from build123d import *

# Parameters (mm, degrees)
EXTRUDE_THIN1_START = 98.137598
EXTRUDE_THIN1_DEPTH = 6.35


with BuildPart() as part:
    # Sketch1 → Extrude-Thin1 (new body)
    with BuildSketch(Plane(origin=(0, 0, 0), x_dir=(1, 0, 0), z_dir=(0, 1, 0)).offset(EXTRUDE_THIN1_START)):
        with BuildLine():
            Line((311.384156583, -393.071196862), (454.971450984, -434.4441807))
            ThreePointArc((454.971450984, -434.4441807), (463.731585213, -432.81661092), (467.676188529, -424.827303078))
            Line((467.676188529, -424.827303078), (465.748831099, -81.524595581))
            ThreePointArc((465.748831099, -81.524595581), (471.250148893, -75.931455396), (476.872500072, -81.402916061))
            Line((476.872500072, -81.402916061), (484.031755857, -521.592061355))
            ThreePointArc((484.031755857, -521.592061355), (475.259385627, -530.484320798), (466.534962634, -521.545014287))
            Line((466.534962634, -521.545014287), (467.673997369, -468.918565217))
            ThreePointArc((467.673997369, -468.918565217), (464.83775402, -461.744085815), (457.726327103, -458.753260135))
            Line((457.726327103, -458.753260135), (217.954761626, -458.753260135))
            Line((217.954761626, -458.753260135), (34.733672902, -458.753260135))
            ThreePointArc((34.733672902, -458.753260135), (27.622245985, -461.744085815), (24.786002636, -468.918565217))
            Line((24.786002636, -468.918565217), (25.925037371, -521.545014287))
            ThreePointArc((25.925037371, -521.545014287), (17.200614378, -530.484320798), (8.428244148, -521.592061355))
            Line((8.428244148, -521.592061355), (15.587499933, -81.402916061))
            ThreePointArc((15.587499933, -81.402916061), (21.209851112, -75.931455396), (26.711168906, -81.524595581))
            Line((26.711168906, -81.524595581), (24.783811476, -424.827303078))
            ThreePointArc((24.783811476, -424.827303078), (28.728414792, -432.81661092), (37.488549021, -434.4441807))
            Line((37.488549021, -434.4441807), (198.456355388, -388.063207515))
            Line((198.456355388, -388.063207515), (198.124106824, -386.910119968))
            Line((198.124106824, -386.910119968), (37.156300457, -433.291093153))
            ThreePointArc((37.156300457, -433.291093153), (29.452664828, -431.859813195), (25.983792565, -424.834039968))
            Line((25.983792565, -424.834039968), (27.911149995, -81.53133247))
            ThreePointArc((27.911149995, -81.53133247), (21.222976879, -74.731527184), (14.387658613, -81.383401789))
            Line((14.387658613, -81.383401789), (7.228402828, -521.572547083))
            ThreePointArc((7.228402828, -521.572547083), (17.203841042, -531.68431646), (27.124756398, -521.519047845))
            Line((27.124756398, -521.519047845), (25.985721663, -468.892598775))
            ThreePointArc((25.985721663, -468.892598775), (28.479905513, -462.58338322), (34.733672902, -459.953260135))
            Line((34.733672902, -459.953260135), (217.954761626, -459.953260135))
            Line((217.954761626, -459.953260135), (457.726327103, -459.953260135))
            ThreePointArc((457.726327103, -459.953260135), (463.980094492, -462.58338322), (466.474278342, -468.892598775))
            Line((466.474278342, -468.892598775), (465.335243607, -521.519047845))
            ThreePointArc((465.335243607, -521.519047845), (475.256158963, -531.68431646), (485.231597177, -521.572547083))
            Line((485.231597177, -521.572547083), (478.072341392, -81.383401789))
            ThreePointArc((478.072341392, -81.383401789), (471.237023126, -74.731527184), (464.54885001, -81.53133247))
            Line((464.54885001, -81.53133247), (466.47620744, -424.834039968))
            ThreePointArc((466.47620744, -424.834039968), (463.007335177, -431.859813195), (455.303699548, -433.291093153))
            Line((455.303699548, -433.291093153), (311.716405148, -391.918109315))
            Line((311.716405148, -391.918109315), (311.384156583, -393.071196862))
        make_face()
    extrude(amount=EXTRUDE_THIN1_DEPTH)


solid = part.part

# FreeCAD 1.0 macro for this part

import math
import FreeCAD as App
import Part
import Sketcher

V = App.Vector
Q = App.Units.Quantity

doc = App.newDocument("Part")
body = doc.addObject("PartDesign::Body", "Body")

sketch1 = body.newObject("Sketcher::SketchObject", "Sketch")
sketch1.AttachmentSupport = (doc.getObject("XZ_Plane"), [""])
sketch1.MapMode = "FlatFace"
sketch1.AttachmentOffset = App.Placement(V(0, 0, -98.137598), App.Rotation())
sketch1.addGeometry(Part.LineSegment(V(311.4, 393.1, 0), V(455, 434.4, 0)), False)
sketch1.addGeometry(Part.ArcOfCircle(Part.Circle(V(457.7, 424.9, 0), V(0, 0, 1), 9.9), math.radians(0), math.radians(106)), False)
sketch1.addGeometry(Part.LineSegment(V(467.7, 424.8, 0), V(465.7, 81.5, 0)), False)
sketch1.addGeometry(Part.ArcOfCircle(Part.Circle(V(471.3, 81.5, 0), V(0, 0, 1), 5.6), math.radians(180), math.radians(359)), False)
sketch1.addGeometry(Part.LineSegment(V(476.9, 81.4, 0), V(484, 521.6, 0)), False)
sketch1.addGeometry(Part.ArcOfCircle(Part.Circle(V(475.3, 521.7, 0), V(0, 0, 1), 8.7), math.radians(-1), math.radians(181)), False)
sketch1.addGeometry(Part.LineSegment(V(466.5, 521.5, 0), V(467.7, 468.9, 0)), False)
sketch1.addGeometry(Part.ArcOfCircle(Part.Circle(V(457.7, 468.7, 0), V(0, 0, 1), 9.9), math.radians(-90), math.radians(1)), False)
sketch1.addGeometry(Part.LineSegment(V(457.7, 458.8, 0), V(34.7, 458.8, 0)), False)
sketch1.addGeometry(Part.ArcOfCircle(Part.Circle(V(34.7, 468.7, 0), V(0, 0, 1), 9.9), math.radians(179), math.radians(270)), False)
sketch1.addGeometry(Part.LineSegment(V(24.8, 468.9, 0), V(25.9, 521.5, 0)), False)
sketch1.addGeometry(Part.ArcOfCircle(Part.Circle(V(17.2, 521.7, 0), V(0, 0, 1), 8.7), math.radians(-1), math.radians(181)), False)
sketch1.addGeometry(Part.LineSegment(V(8.4, 521.6, 0), V(15.6, 81.4, 0)), False)
sketch1.addGeometry(Part.ArcOfCircle(Part.Circle(V(21.1, 81.5, 0), V(0, 0, 1), 5.6), math.radians(-179), math.radians(0)), False)
sketch1.addGeometry(Part.LineSegment(V(26.7, 81.5, 0), V(24.8, 424.8, 0)), False)
sketch1.addGeometry(Part.ArcOfCircle(Part.Circle(V(34.7, 424.9, 0), V(0, 0, 1), 9.9), math.radians(74), math.radians(180)), False)
sketch1.addGeometry(Part.LineSegment(V(37.5, 434.4, 0), V(198.5, 388.1, 0)), False)
sketch1.addGeometry(Part.LineSegment(V(198.5, 388.1, 0), V(198.1, 386.9, 0)), False)
sketch1.addGeometry(Part.LineSegment(V(198.1, 386.9, 0), V(37.2, 433.3, 0)), False)
sketch1.addGeometry(Part.ArcOfCircle(Part.Circle(V(34.7, 424.9, 0), V(0, 0, 1), 8.8), math.radians(74), math.radians(180)), False)
sketch1.addGeometry(Part.LineSegment(V(26, 424.8, 0), V(27.9, 81.5, 0)), False)
sketch1.addGeometry(Part.ArcOfCircle(Part.Circle(V(21.1, 81.5, 0), V(0, 0, 1), 6.8), math.radians(-179), math.radians(0)), False)
sketch1.addGeometry(Part.LineSegment(V(14.4, 81.4, 0), V(7.2, 521.6, 0)), False)
sketch1.addGeometry(Part.ArcOfCircle(Part.Circle(V(17.2, 521.7, 0), V(0, 0, 1), 9.9), math.radians(-1), math.radians(181)), False)
sketch1.addGeometry(Part.LineSegment(V(27.1, 521.5, 0), V(26, 468.9, 0)), False)
sketch1.addGeometry(Part.ArcOfCircle(Part.Circle(V(34.7, 468.7, 0), V(0, 0, 1), 8.7), math.radians(179), math.radians(270)), False)
sketch1.addGeometry(Part.LineSegment(V(34.7, 460, 0), V(457.7, 460, 0)), False)
sketch1.addGeometry(Part.ArcOfCircle(Part.Circle(V(457.7, 468.7, 0), V(0, 0, 1), 8.7), math.radians(-90), math.radians(1)), False)
sketch1.addGeometry(Part.LineSegment(V(466.5, 468.9, 0), V(465.3, 521.5, 0)), False)
sketch1.addGeometry(Part.ArcOfCircle(Part.Circle(V(475.3, 521.7, 0), V(0, 0, 1), 9.9), math.radians(-1), math.radians(181)), False)
sketch1.addGeometry(Part.LineSegment(V(485.2, 521.6, 0), V(478.1, 81.4, 0)), False)
sketch1.addGeometry(Part.ArcOfCircle(Part.Circle(V(471.3, 81.5, 0), V(0, 0, 1), 6.8), math.radians(180), math.radians(359)), False)
sketch1.addGeometry(Part.LineSegment(V(464.5, 81.5, 0), V(466.5, 424.8, 0)), False)
sketch1.addGeometry(Part.ArcOfCircle(Part.Circle(V(457.7, 424.9, 0), V(0, 0, 1), 8.8), math.radians(0), math.radians(106)), False)
sketch1.addGeometry(Part.LineSegment(V(455.3, 433.3, 0), V(311.7, 391.9, 0)), False)
sketch1.addGeometry(Part.LineSegment(V(311.7, 391.9, 0), V(311.4, 393.1, 0)), False)
sketch1.addConstraint(Sketcher.Constraint("Tangent", 0, 2, 1, 2))
sketch1.addConstraint(Sketcher.Constraint("Tangent", 1, 1, 2, 1))
sketch1.addConstraint(Sketcher.Constraint("Tangent", 2, 2, 3, 1))
sketch1.addConstraint(Sketcher.Constraint("Tangent", 3, 2, 4, 1))
sketch1.addConstraint(Sketcher.Constraint("Tangent", 4, 2, 5, 1))
sketch1.addConstraint(Sketcher.Constraint("Tangent", 5, 2, 6, 1))
sketch1.addConstraint(Sketcher.Constraint("Tangent", 6, 2, 7, 2))
sketch1.addConstraint(Sketcher.Constraint("Tangent", 7, 1, 8, 1))
sketch1.addConstraint(Sketcher.Constraint("Tangent", 8, 2, 9, 2))
sketch1.addConstraint(Sketcher.Constraint("Tangent", 9, 1, 10, 1))
sketch1.addConstraint(Sketcher.Constraint("Tangent", 10, 2, 11, 1))
sketch1.addConstraint(Sketcher.Constraint("Tangent", 11, 2, 12, 1))
sketch1.addConstraint(Sketcher.Constraint("Tangent", 12, 2, 13, 1))
sketch1.addConstraint(Sketcher.Constraint("Tangent", 13, 2, 14, 1))
sketch1.addConstraint(Sketcher.Constraint("Tangent", 14, 2, 15, 2))
sketch1.addConstraint(Sketcher.Constraint("Tangent", 15, 1, 16, 1))
sketch1.addConstraint(Sketcher.Constraint("Coincident", 16, 2, 17, 1))
sketch1.addConstraint(Sketcher.Constraint("Coincident", 17, 2, 18, 1))
sketch1.addConstraint(Sketcher.Constraint("Tangent", 18, 2, 19, 1))
sketch1.addConstraint(Sketcher.Constraint("Tangent", 19, 2, 20, 1))
sketch1.addConstraint(Sketcher.Constraint("Tangent", 20, 2, 21, 2))
sketch1.addConstraint(Sketcher.Constraint("Tangent", 21, 1, 22, 1))
sketch1.addConstraint(Sketcher.Constraint("Tangent", 22, 2, 23, 2))
sketch1.addConstraint(Sketcher.Constraint("Tangent", 23, 1, 24, 1))
sketch1.addConstraint(Sketcher.Constraint("Tangent", 24, 2, 25, 1))
sketch1.addConstraint(Sketcher.Constraint("Tangent", 25, 2, 26, 1))
sketch1.addConstraint(Sketcher.Constraint("Tangent", 26, 2, 27, 1))
sketch1.addConstraint(Sketcher.Constraint("Tangent", 27, 2, 28, 1))
sketch1.addConstraint(Sketcher.Constraint("Tangent", 28, 2, 29, 2))
sketch1.addConstraint(Sketcher.Constraint("Tangent", 29, 1, 30, 1))
sketch1.addConstraint(Sketcher.Constraint("Tangent", 30, 2, 31, 2))
sketch1.addConstraint(Sketcher.Constraint("Tangent", 31, 1, 32, 1))
sketch1.addConstraint(Sketcher.Constraint("Tangent", 32, 2, 33, 1))
sketch1.addConstraint(Sketcher.Constraint("Tangent", 33, 2, 34, 1))
sketch1.addConstraint(Sketcher.Constraint("Coincident", 34, 2, 35, 1))
sketch1.addConstraint(Sketcher.Constraint("Coincident", 35, 2, 0, 1))
sketch1.addConstraint(Sketcher.Constraint("Horizontal", 8))
sketch1.addConstraint(Sketcher.Constraint("Horizontal", 26))
sketch1.addConstraint(Sketcher.Constraint("Coincident", 19, 3, 15, 3))
sketch1.addConstraint(Sketcher.Constraint("Coincident", 21, 3, 13, 3))
sketch1.addConstraint(Sketcher.Constraint("Coincident", 23, 3, 11, 3))
sketch1.addConstraint(Sketcher.Constraint("Coincident", 25, 3, 9, 3))
sketch1.addConstraint(Sketcher.Constraint("Coincident", 27, 3, 7, 3))
sketch1.addConstraint(Sketcher.Constraint("Coincident", 29, 3, 5, 3))
sketch1.addConstraint(Sketcher.Constraint("Coincident", 31, 3, 3, 3))
sketch1.addConstraint(Sketcher.Constraint("Coincident", 33, 3, 1, 3))
sketch1.addConstraint(Sketcher.Constraint("Equal", 1, 7))
sketch1.addConstraint(Sketcher.Constraint("Equal", 7, 9))
sketch1.addConstraint(Sketcher.Constraint("Equal", 5, 11))
sketch1.addConstraint(Sketcher.Constraint("Equal", 3, 13))
sketch1.addConstraint(Sketcher.Constraint("Equal", 9, 15))
sketch1.addConstraint(Sketcher.Constraint("Equal", 11, 19))
sketch1.addConstraint(Sketcher.Constraint("Equal", 15, 23))
sketch1.addConstraint(Sketcher.Constraint("Equal", 19, 25))
sketch1.addConstraint(Sketcher.Constraint("Equal", 23, 29))
sketch1.addConstraint(Sketcher.Constraint("Equal", 21, 31))
sketch1.addConstraint(Sketcher.Constraint("Equal", 27, 33))
sketch1.addConstraint(Sketcher.Constraint("Perpendicular", 16, 17))
sketch1.addConstraint(Sketcher.Constraint("Perpendicular", 17, 18))
sketch1.addConstraint(Sketcher.Constraint("Parallel", 14, 20))
sketch1.addConstraint(Sketcher.Constraint("Parallel", 0, 34))
sketch1.addConstraint(Sketcher.Constraint("Perpendicular", 34, 35))
sketch1.addConstraint(Sketcher.Constraint("Horizontal", 5, 3, 11, 3))
sketch1.addConstraint(Sketcher.Constraint("Horizontal", 3, 3, 13, 3))
sketch1.addConstraint(Sketcher.Constraint("Horizontal", 1, 3, 15, 3))
sketch1.addConstraint(Sketcher.Constraint("Horizontal", 6, 2, 9, 1))
sketch1.addConstraint(Sketcher.Constraint("Horizontal", 2, 2, 13, 2))
sketch1.addConstraint(Sketcher.Constraint("Horizontal", 0, 2, 15, 1))
sketch1.addConstraint(Sketcher.Constraint("Equal", 4, 12))
sketch1.addConstraint(Sketcher.Constraint("Radius", 1, Q("9.95 mm")))
sketch1.addConstraint(Sketcher.Constraint("Radius", 5, Q("8.75 mm")))
sketch1.addConstraint(Sketcher.Constraint("Radius", 3, Q("5.562246 mm")))
sketch1.addConstraint(Sketcher.Constraint("DistanceX", -1, 1, 3, 2, Q("476.8725 mm")))
sketch1.addConstraint(Sketcher.Constraint("DistanceX", -1, 1, 12, 2, Q("15.5875 mm")))
sketch1.addConstraint(Sketcher.Constraint("DistanceX", -1, 1, 18, 2, Q("37.1563 mm")))
sketch1.addConstraint(Sketcher.Constraint("DistanceY", -1, 1, 21, 1, Q("81.383402 mm")))
sketch1.addConstraint(Sketcher.Constraint("DistanceY", -1, 1, 24, 2, Q("468.892599 mm")))
sketch1.addConstraint(Sketcher.Constraint("DistanceY", 7, 3, 4, 2, Q("52.888801 mm")))
sketch1.addConstraint(Sketcher.Constraint("DistanceX", 19, 3, 16, 2, Q("163.722701 mm")))
sketch1.addConstraint(Sketcher.Constraint("DistanceX", 22, 2, 9, 1, Q("17.5576 mm")))
sketch1.addConstraint(Sketcher.Constraint("DistanceY", 30, 2, 1, 1, Q("343.443901 mm")))
sketch1.addConstraint(Sketcher.Constraint("DistanceY", 16, 2, 34, 2, Q("3.854902 mm")))
sketch1.addConstraint(Sketcher.Constraint("DistanceX", 17, 2, 34, 2, Q("113.592298 mm")))
sketch1.addConstraint(Sketcher.Constraint("DistanceX", 8, 2, 8, 1, Q("422.992654 mm")))
pad1 = body.newObject("PartDesign::Pad", "Pad")
pad1.Profile = sketch1
pad1.Length = 6.35
pad1.Reversed = True

doc.recompute()
